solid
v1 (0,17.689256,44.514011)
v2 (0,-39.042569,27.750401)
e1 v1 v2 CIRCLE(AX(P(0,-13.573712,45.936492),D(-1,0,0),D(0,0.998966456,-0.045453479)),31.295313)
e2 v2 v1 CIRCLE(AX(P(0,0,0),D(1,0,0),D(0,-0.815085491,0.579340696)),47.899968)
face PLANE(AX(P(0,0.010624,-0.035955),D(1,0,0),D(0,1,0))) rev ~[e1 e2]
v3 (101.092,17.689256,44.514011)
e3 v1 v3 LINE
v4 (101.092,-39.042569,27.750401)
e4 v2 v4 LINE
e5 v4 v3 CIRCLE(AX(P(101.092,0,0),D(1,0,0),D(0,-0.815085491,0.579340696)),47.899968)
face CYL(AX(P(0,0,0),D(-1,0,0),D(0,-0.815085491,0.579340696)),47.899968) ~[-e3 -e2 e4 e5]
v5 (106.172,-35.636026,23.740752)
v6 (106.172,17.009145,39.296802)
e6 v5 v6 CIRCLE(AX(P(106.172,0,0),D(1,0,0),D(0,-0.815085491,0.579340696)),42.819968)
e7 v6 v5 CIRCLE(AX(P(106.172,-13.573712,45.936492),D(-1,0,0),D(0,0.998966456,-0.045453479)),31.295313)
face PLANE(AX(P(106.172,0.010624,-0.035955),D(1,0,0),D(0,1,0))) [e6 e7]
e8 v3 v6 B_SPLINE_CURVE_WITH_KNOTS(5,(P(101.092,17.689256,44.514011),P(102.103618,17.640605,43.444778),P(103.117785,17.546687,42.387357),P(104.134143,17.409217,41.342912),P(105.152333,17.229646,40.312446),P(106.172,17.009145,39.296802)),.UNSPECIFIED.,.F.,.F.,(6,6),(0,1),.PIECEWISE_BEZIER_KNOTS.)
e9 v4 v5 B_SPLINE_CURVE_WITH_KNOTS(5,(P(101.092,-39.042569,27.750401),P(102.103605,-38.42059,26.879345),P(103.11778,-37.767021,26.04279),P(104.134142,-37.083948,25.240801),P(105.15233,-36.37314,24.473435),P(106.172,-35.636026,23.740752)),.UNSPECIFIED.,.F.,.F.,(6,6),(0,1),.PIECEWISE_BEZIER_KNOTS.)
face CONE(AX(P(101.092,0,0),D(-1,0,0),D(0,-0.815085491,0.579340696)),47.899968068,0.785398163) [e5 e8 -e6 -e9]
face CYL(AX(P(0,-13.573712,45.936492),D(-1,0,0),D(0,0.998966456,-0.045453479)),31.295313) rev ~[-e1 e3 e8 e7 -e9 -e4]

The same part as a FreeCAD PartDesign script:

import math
import FreeCAD as App
import Part
import Sketcher

V = App.Vector
Q = App.Units.Quantity


def edges_at(feature, points):
    """Names of the edges that pass closest to the given points."""
    edges = feature.Shape.Edges
    near = lambda p: min(range(len(edges)), key=lambda i: edges[i].distToShape(Part.Vertex(*p))[0])
    return sorted({f"Edge{near(p) + 1}" for p in points})

doc = App.newDocument("Part")
body = doc.addObject("PartDesign::Body", "Body")

sketch1 = body.newObject("Sketcher::SketchObject", "Sketch")
sketch1.AttachmentSupport = (doc.getObject("YZ_Plane"), [""])
sketch1.MapMode = "FlatFace"
sketch1.addGeometry([
    Part.ArcOfCircle(Part.Circle(V(-14, 46, 0), V(0, 0, 1), 31), math.radians(-144), math.radians(-3)),
    Part.ArcOfCircle(Part.Circle(V(0, 0, 0), V(0, 0, 1), 48), math.radians(145), math.radians(428)),
], False)
sketch1.addConstraint([
    Sketcher.Constraint("Coincident", 0, 1, 1, 1),
    Sketcher.Constraint("Coincident", 1, 2, 0, 2),
    Sketcher.Constraint("Coincident", 1, 3, -1, 1),
    Sketcher.Constraint("Radius", 1, Q("47.899968 mm")),
    Sketcher.Constraint("Radius", 0, Q("31.295313 mm")),
    Sketcher.Constraint("DistanceY", -1, 1, 0, 1, Q("27.750401 mm")),
    Sketcher.Constraint("DistanceX", 0, 3, -1, 1, Q("13.573712 mm")),
])
pad1 = body.newObject("PartDesign::Pad", "Pad")
pad1.Profile = sketch1
pad1.Length = Q("4.18 in")
doc.recompute()

chamfer = body.newObject("PartDesign::Chamfer", "Chamfer")
chamfer.Base = (pad1, edges_at(pad1, [(106.172, 13.574, -45.936)]))
chamfer.ChamferType = "Two distances"
chamfer.Size = Q("0.2 in")
chamfer.Size2 = Q("0.2 in")

doc.recompute()
